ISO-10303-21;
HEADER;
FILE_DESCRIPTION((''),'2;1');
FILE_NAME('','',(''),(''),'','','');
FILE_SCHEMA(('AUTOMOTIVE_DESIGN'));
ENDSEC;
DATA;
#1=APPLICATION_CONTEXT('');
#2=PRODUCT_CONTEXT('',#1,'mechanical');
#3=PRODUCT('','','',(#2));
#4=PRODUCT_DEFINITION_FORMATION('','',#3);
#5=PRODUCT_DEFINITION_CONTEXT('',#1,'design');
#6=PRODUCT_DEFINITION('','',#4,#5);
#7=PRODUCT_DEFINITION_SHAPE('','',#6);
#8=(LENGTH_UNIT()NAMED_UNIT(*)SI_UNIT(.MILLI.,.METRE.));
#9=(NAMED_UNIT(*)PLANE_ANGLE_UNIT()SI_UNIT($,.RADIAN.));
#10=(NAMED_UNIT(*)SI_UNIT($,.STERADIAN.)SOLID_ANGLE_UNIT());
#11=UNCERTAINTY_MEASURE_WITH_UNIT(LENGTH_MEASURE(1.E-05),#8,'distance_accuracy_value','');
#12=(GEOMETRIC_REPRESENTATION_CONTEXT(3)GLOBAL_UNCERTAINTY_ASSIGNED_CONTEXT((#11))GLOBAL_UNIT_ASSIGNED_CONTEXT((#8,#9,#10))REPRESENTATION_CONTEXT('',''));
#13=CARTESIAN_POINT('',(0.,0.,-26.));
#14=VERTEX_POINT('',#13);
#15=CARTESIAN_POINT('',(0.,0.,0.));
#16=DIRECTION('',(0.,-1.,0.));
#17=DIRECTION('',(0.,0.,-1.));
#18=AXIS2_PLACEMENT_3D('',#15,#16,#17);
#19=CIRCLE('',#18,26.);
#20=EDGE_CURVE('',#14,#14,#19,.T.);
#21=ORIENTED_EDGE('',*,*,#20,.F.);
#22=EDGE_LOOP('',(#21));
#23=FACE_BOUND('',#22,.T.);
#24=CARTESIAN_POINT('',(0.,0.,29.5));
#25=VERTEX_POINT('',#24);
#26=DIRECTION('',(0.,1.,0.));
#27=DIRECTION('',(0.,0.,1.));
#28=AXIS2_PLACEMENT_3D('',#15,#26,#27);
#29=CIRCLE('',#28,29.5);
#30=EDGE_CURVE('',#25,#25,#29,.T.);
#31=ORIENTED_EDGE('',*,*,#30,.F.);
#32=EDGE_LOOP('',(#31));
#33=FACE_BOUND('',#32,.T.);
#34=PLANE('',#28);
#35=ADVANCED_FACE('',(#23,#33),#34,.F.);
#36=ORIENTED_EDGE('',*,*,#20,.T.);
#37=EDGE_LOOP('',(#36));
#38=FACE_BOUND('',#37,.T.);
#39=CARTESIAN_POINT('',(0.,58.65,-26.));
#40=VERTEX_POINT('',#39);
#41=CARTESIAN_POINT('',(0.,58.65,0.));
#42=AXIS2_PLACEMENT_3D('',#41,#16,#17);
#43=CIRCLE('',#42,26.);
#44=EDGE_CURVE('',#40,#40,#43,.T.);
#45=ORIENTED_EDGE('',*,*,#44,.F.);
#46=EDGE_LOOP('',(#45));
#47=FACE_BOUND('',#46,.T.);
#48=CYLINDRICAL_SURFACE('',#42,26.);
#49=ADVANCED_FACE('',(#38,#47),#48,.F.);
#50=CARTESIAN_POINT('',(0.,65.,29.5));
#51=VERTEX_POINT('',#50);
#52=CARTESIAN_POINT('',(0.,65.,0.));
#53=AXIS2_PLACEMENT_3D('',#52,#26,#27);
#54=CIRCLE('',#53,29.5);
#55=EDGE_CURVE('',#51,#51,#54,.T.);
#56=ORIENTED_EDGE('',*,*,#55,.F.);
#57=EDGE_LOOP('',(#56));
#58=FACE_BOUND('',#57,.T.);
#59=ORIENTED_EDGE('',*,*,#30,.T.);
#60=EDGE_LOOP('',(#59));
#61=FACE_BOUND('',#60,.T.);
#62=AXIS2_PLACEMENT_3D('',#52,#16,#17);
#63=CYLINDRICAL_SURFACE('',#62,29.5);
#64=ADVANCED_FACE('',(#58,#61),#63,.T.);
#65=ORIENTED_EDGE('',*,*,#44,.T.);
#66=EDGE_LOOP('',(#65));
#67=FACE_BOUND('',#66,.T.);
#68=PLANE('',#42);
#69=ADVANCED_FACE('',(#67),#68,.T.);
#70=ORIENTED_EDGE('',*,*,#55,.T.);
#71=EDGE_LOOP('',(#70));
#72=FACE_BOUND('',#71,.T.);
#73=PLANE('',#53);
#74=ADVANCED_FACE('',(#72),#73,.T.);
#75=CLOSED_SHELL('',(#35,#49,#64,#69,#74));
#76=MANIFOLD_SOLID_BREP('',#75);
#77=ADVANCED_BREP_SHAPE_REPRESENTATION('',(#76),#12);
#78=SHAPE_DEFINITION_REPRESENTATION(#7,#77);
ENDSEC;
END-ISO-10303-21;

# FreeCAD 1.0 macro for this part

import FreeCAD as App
import Part
import Sketcher

V = App.Vector
Q = App.Units.Quantity

doc = App.newDocument("Part")
body = doc.addObject("PartDesign::Body", "Body")

sketch1 = body.newObject("Sketcher::SketchObject", "Sketch")
sketch1.AttachmentSupport = (doc.getObject("XZ_Plane"), [""])
sketch1.MapMode = "FlatFace"
sketch1.addGeometry(Part.Circle(V(0, 0, 0), V(0, 0, 1), 30), False)
sketch1.addConstraint(Sketcher.Constraint("Coincident", 0, 3, -1, 1))
sketch1.addConstraint(Sketcher.Constraint("Diameter", 0, Q("59 mm")))
pad1 = body.newObject("PartDesign::Pad", "Pad")
pad1.Profile = sketch1
pad1.Length = 65
pad1.Reversed = True

sketch2 = body.newObject("Sketcher::SketchObject", "Sketch001")
sketch2.AttachmentSupport = (doc.getObject("XZ_Plane"), [""])
sketch2.MapMode = "FlatFace"
sketch2.addGeometry(Part.Circle(V(0, 0, 0), V(0, 0, 1), 26), False)
sketch2.addConstraint(Sketcher.Constraint("Coincident", 0, 3, -1, 1))
sketch2.addConstraint(Sketcher.Constraint("Diameter", 0, Q("52 mm")))
pocket1 = body.newObject("PartDesign::Pocket", "Pocket")
pocket1.Profile = sketch2
pocket1.Length = 58.65

doc.recompute()
